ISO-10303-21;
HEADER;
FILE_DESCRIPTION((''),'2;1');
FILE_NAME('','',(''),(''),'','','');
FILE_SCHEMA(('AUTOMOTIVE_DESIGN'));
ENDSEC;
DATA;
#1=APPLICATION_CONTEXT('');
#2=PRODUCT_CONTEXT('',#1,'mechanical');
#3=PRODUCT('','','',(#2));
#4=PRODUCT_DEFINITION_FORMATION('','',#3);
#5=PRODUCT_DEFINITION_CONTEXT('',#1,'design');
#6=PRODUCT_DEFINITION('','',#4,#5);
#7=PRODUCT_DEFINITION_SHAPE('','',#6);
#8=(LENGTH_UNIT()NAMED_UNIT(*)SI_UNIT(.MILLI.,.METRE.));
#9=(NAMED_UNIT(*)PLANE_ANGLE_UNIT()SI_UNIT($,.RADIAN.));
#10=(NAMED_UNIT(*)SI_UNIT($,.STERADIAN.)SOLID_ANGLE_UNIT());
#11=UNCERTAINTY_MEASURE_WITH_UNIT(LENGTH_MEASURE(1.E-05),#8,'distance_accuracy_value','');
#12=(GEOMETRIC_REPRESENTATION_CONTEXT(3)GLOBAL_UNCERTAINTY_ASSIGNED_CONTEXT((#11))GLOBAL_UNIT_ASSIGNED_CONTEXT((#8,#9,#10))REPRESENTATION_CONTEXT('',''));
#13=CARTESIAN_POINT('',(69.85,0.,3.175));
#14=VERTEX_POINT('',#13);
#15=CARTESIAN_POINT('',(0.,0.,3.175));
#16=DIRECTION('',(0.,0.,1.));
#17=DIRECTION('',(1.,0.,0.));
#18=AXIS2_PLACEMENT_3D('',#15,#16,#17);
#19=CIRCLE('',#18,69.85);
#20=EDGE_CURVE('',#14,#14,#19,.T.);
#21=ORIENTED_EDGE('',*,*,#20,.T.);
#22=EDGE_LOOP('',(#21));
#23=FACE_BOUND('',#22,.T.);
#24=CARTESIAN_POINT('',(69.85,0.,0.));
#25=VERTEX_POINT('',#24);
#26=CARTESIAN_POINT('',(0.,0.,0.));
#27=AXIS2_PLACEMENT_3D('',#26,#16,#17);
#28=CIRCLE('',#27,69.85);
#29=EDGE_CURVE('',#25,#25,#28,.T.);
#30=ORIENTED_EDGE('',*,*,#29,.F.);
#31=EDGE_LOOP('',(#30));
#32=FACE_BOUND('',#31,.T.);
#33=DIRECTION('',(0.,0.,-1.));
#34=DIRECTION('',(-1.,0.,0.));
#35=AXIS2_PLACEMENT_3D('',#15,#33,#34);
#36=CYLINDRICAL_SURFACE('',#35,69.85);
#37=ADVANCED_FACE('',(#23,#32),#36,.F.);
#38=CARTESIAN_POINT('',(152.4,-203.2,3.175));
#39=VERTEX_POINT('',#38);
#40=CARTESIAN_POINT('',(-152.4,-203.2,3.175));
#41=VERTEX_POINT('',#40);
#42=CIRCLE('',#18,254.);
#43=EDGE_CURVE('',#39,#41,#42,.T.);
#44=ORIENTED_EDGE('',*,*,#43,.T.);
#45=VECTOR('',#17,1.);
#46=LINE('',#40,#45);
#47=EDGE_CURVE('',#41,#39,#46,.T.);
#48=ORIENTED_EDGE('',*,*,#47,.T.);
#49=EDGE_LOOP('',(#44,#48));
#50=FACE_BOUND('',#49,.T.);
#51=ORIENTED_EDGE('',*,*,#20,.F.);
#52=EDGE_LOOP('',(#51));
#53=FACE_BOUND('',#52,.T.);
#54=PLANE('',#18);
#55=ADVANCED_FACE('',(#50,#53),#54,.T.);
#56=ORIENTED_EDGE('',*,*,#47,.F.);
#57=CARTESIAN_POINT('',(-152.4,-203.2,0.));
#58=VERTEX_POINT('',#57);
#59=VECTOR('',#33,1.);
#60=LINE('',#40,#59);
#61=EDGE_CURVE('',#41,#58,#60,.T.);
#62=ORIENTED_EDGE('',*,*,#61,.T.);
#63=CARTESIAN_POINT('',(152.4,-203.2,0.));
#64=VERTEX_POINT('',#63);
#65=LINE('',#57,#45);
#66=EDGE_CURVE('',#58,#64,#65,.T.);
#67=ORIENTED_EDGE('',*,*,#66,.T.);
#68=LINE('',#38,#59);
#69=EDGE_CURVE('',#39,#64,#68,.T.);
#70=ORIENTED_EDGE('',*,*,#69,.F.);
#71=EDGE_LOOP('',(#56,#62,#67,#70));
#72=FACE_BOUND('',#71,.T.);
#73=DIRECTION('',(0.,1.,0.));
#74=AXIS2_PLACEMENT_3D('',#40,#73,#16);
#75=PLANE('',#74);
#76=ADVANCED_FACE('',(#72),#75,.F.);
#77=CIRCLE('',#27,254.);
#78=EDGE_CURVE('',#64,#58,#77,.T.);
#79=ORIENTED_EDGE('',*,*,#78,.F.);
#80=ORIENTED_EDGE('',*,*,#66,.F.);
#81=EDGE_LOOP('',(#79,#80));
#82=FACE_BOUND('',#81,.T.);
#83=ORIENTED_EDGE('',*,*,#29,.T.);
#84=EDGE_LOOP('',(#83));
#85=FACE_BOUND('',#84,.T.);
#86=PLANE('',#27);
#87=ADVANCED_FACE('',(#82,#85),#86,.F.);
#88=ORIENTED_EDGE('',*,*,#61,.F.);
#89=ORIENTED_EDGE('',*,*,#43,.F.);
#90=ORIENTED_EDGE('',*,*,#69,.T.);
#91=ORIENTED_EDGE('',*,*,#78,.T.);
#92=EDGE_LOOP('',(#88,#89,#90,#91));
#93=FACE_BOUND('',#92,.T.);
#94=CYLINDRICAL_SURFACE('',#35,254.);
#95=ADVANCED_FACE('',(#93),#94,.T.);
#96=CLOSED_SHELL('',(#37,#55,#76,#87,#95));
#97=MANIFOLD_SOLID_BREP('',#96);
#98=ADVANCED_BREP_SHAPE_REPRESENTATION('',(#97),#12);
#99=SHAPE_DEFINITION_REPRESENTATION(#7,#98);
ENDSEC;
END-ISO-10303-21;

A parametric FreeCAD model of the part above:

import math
import FreeCAD as App
import Part
import Sketcher
Q = App.Units.Quantity

doc = App.newDocument("Part")
params = doc.addObject("Spreadsheet::Sheet", "Params")
for row, (alias, value) in enumerate([
    ("sketch1_radius", "10 in"),
    ("sketch1_diameter", "5.5 in"),
    ("sketch1_width", "12 in"),
    ("pad1_length", "0.125 in"),
], start=1):
    params.set(f"A{row}", alias)
    params.set(f"B{row}", "=" + value)
    params.setAlias(f"B{row}", alias)

body = doc.addObject("PartDesign::Body", "Body")

sketch1 = body.newObject("Sketcher::SketchObject", "Sketch")
sketch1.AttachmentSupport = (doc.getObject("XY_Plane"), [""])
sketch1.MapMode = "FlatFace"
sketch1.addGeometry([
    Part.LineSegment(App.Vector(-152, -203, 0), App.Vector(152, -203, 0)),
    Part.ArcOfCircle(Part.Circle(App.Vector(0, 0, 0), App.Vector(0, 0, 1), 254), math.radians(-53), math.radians(233)),
    Part.Circle(App.Vector(0, 0, 0), App.Vector(0, 0, 1), 70),
], False)
sketch1.addConstraint([
    Sketcher.Constraint("Coincident", 0, 1, 1, 2),
    Sketcher.Constraint("Coincident", 1, 1, 0, 2),
    Sketcher.Constraint("Horizontal", 0),
    Sketcher.Constraint("Coincident", 1, 3, -1, 1),
    Sketcher.Constraint("Coincident", 2, 3, -1, 1),
    Sketcher.Constraint("Radius", 1, Q("10 in")),
    Sketcher.Constraint("Diameter", 2, Q("5.5 in")),
    Sketcher.Constraint("DistanceX", 0, 1, 0, 2, Q("12 in")),
])
sketch1.setExpression("Constraints[5]", "Params.sketch1_radius")
sketch1.setExpression("Constraints[6]", "Params.sketch1_diameter")
sketch1.setExpression("Constraints[7]", "Params.sketch1_width")
pad1 = body.newObject("PartDesign::Pad", "Pad")
pad1.Profile = sketch1
pad1.setExpression("Length", "Params.pad1_length")

doc.recompute()
